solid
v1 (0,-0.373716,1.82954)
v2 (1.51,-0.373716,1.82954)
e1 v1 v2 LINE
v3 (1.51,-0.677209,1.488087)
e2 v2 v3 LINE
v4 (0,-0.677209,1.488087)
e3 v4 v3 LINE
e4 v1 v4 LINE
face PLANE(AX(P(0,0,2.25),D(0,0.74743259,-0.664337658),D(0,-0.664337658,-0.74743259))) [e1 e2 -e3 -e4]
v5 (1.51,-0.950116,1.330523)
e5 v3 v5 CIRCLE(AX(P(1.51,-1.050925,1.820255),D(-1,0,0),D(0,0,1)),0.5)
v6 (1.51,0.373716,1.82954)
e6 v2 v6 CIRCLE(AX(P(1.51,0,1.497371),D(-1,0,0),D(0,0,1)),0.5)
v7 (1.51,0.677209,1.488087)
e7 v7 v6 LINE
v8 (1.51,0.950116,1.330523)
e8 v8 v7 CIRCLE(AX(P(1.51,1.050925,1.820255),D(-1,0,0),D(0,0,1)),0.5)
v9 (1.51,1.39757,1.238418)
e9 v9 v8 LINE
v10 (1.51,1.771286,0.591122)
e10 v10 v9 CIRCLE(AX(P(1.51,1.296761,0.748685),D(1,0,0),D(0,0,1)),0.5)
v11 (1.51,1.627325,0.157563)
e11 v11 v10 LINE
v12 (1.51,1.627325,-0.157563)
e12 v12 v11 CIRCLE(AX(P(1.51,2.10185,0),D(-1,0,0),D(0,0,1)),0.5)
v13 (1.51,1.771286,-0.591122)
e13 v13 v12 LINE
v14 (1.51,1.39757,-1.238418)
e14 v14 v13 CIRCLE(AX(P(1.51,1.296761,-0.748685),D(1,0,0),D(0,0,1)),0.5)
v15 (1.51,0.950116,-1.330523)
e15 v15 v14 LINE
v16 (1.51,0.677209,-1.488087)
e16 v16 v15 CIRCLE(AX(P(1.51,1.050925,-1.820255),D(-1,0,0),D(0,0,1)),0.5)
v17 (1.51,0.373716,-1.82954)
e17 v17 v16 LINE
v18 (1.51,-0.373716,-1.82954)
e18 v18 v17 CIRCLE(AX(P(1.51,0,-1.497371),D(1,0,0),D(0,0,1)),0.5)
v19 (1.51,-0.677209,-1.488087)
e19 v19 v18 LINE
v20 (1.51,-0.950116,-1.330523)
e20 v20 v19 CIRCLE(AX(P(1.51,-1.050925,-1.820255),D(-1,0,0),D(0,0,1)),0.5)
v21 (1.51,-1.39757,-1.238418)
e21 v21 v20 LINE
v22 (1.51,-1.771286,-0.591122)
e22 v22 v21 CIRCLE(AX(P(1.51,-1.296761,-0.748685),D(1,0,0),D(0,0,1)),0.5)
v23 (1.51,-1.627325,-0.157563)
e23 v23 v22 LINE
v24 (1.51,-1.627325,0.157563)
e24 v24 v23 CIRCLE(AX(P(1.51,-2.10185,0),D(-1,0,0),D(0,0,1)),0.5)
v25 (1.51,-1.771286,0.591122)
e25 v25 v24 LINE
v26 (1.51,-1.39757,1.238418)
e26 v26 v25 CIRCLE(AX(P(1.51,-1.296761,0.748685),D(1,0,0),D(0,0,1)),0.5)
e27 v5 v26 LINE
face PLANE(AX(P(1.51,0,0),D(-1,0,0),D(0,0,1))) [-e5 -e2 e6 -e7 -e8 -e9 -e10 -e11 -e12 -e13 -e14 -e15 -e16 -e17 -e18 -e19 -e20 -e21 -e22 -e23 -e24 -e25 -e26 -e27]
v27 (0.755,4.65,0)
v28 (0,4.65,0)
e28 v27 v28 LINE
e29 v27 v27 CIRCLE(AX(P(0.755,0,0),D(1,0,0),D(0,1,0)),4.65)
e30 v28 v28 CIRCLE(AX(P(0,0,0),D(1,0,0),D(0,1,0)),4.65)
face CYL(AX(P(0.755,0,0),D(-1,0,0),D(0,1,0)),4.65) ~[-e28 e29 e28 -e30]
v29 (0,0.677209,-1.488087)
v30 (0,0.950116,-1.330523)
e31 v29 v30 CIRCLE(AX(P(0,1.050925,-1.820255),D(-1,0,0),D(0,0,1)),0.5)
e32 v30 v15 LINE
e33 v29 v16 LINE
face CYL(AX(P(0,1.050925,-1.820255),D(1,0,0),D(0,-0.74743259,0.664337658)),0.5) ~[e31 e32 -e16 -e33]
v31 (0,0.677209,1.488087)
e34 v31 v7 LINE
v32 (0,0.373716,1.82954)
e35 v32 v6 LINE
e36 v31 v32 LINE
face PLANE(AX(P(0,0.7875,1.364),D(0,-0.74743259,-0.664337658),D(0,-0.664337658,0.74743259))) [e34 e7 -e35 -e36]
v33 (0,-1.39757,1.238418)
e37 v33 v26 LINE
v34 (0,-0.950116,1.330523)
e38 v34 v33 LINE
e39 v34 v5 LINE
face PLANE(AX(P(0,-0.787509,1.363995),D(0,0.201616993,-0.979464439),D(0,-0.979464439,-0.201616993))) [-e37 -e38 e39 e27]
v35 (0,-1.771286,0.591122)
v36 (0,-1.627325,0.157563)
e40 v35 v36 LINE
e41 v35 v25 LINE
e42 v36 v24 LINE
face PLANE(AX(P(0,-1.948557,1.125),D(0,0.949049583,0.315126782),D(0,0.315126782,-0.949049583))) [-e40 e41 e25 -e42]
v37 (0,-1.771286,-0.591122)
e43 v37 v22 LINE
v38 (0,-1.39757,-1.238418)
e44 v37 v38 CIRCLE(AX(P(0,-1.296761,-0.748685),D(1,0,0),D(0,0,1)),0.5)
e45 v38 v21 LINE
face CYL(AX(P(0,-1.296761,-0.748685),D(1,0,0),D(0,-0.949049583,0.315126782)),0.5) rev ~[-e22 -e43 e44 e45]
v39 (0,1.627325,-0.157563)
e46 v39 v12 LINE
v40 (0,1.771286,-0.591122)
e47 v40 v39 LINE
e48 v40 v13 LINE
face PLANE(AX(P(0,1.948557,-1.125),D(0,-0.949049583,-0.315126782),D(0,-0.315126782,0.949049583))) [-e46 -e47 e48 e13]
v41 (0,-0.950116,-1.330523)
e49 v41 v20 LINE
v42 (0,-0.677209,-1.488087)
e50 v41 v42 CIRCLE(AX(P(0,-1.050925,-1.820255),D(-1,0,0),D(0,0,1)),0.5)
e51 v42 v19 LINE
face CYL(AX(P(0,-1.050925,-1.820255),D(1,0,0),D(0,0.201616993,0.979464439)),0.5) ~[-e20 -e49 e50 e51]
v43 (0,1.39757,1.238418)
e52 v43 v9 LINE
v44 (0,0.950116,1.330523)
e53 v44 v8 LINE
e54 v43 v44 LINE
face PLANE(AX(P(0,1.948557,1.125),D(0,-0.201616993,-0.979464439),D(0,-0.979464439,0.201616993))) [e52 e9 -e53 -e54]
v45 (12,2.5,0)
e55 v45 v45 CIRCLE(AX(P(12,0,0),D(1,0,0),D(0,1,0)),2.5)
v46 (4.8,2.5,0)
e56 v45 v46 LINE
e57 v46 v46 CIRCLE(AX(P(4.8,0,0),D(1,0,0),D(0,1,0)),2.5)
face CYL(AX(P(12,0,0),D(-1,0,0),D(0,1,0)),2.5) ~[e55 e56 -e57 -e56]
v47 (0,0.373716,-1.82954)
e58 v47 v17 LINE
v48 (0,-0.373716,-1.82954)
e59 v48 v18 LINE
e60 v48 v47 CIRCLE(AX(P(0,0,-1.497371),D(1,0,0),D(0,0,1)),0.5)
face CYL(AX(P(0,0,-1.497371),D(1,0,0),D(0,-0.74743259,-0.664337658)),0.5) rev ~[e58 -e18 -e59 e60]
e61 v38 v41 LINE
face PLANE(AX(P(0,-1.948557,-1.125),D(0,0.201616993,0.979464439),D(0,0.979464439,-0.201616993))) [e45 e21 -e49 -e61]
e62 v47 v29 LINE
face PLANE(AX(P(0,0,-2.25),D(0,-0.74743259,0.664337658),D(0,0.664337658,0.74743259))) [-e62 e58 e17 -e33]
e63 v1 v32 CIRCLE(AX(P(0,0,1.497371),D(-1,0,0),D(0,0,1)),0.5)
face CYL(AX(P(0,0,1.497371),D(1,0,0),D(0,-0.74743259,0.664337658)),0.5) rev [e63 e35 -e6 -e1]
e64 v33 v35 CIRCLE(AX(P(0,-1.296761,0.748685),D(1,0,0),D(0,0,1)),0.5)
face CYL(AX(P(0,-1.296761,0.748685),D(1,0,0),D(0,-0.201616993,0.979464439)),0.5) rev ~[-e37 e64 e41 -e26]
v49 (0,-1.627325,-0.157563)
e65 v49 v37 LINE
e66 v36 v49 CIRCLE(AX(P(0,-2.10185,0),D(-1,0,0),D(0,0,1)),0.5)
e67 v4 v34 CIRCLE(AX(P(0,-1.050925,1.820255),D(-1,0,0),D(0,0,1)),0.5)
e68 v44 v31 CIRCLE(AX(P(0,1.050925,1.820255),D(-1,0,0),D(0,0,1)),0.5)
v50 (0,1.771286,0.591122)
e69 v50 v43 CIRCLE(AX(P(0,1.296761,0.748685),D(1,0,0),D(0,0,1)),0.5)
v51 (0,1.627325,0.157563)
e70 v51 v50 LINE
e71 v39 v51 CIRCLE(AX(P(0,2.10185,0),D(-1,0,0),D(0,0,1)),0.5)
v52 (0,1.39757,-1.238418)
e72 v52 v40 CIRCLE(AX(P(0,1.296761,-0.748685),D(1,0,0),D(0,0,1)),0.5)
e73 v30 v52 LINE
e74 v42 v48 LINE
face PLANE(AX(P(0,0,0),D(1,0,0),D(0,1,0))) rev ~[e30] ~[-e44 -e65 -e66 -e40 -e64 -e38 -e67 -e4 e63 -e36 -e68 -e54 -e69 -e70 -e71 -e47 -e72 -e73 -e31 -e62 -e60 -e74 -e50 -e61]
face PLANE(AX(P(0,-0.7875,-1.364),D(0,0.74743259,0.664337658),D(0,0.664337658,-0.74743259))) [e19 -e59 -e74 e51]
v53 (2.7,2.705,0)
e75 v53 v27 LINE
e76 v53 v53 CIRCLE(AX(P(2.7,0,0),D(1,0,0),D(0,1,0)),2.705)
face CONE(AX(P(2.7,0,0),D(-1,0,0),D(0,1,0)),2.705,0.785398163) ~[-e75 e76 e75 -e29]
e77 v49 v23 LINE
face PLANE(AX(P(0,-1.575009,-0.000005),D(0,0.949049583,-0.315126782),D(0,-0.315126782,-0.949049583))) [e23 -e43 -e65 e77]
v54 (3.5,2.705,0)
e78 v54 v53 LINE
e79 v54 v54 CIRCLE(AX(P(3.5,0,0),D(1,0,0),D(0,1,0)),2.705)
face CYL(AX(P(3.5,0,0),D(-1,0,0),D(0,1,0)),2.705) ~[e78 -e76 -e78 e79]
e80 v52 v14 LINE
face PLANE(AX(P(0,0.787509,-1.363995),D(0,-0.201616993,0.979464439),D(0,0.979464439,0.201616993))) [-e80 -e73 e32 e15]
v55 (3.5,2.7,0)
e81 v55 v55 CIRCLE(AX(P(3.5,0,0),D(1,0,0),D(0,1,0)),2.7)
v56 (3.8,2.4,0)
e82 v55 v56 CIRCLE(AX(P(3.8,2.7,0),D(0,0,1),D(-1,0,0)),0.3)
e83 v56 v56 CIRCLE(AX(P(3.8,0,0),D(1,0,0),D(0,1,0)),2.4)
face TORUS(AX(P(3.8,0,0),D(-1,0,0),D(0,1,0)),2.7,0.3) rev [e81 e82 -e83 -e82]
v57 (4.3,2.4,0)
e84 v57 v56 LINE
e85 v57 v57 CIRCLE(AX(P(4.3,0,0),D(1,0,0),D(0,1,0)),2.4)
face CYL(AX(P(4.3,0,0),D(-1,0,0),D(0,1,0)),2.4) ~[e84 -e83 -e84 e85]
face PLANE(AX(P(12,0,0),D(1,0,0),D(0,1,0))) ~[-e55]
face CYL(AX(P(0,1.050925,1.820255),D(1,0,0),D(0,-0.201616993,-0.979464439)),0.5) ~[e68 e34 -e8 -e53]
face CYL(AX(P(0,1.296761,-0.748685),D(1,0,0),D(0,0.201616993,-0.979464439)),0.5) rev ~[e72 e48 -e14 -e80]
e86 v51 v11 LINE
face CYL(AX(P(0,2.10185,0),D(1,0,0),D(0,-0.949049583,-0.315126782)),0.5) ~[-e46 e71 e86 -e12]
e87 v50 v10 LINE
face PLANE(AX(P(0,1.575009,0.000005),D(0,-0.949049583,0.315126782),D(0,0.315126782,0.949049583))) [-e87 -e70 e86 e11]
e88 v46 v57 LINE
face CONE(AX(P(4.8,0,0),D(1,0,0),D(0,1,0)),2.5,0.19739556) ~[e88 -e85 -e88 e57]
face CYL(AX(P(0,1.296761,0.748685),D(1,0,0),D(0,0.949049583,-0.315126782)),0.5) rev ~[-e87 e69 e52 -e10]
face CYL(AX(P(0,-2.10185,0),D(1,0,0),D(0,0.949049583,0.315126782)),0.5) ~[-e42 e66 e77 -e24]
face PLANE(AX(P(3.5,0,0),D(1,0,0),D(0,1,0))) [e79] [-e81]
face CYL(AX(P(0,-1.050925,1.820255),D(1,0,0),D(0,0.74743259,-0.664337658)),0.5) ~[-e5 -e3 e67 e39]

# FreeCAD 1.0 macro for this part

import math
import FreeCAD as App
import Part
import Sketcher
Q = App.Units.Quantity


def edges_at(feature, points):
    """Names of the edges that pass closest to the given points."""
    edges = feature.Shape.Edges
    near = lambda p: min(range(len(edges)), key=lambda i: edges[i].distToShape(Part.Vertex(*p))[0])
    return sorted({f"Edge{near(p) + 1}" for p in points})


def add_polygon(sketch, points):
    """Adds a closed chain of lines whose ends are joined by coincident constraints."""
    first, n = sketch.GeometryCount, len(points)
    for a, b in zip(points, points[1:] + points[:1]):
        sketch.addGeometry(Part.LineSegment(App.Vector(*a, 0), App.Vector(*b, 0)), False)
    for i in range(n):
        sketch.addConstraint(Sketcher.Constraint("Coincident", first + i, 2, first + (i + 1) % n, 1))

doc = App.newDocument("Part")
params = doc.addObject("Spreadsheet::Sheet", "Params")
for row, (alias, value) in enumerate([
    ("sketch1_radius", "0.3 mm"),
    ("sketch1_width", "12 mm"),
    ("sketch1_width2", "7.2 mm"),
    ("sketch1_width3", "0.5 mm"),
    ("sketch1_width4", "0.8 mm"),
    ("revolution_angle", "360 deg"),
    ("pocket1_length", "1.51 mm"),
    ("fillet_radius", "0.5 mm"),
], start=1):
    params.set(f"A{row}", alias)
    params.set(f"B{row}", "=" + value)
    params.setAlias(f"B{row}", alias)

body = doc.addObject("PartDesign::Body", "Body")

# Sketch on XY plane
sketch1 = body.newObject("Sketcher::SketchObject", "Sketch")
sketch1.AttachmentSupport = (doc.getObject("XY_Plane"), [""])
sketch1.MapMode = "FlatFace"
sketch1.addGeometry([
    Part.LineSegment(App.Vector(0, 4.65, 0), App.Vector(0, 0, 0)),  # 0
    Part.LineSegment(App.Vector(0, 0, 0), App.Vector(12, 0, 0)),  # 1
    Part.LineSegment(App.Vector(12, 0, 0), App.Vector(12, 2.5, 0)),  # 2
    Part.LineSegment(App.Vector(12, 2.5, 0), App.Vector(4.8, 2.5, 0)),  # 3
    Part.LineSegment(App.Vector(4.8, 2.5, 0), App.Vector(4.3, 2.4, 0)),  # 4
    Part.LineSegment(App.Vector(4.3, 2.4, 0), App.Vector(3.8, 2.4, 0)),  # 5
    Part.ArcOfCircle(Part.Circle(App.Vector(3.8, 2.7, 0), App.Vector(0, 0, 1), 0.3), math.radians(180), math.radians(270)),  # 6
    Part.LineSegment(App.Vector(3.5, 2.7, 0), App.Vector(3.5, 2.705, 0)),  # 7
    Part.LineSegment(App.Vector(3.5, 2.705, 0), App.Vector(2.7, 2.705, 0)),  # 8
    Part.LineSegment(App.Vector(2.7, 2.705, 0), App.Vector(0.755, 4.65, 0)),  # 9
    Part.LineSegment(App.Vector(0.755, 4.65, 0), App.Vector(0, 4.65, 0)),  # 10
], False)
sketch1.addConstraint([
    Sketcher.Constraint("Coincident", 0, 2, 1, 1),
    Sketcher.Constraint("Coincident", 1, 2, 2, 1),
    Sketcher.Constraint("Coincident", 2, 2, 3, 1),
    Sketcher.Constraint("Coincident", 3, 2, 4, 1),
    Sketcher.Constraint("Coincident", 4, 2, 5, 1),
    Sketcher.Constraint("Tangent", 5, 2, 6, 2),
    Sketcher.Constraint("Tangent", 6, 1, 7, 1),
    Sketcher.Constraint("Coincident", 7, 2, 8, 1),
    Sketcher.Constraint("Coincident", 8, 2, 9, 1),
    Sketcher.Constraint("Coincident", 9, 2, 10, 1),
    Sketcher.Constraint("Coincident", 10, 2, 0, 1),
    Sketcher.Constraint("Vertical", 0),
    Sketcher.Constraint("Horizontal", 1),
    Sketcher.Constraint("Vertical", 2),
    Sketcher.Constraint("Horizontal", 3),
    Sketcher.Constraint("Horizontal", 5),
    Sketcher.Constraint("Vertical", 7),
    Sketcher.Constraint("Horizontal", 8),
    Sketcher.Constraint("Horizontal", 10),
    Sketcher.Constraint("Coincident", 0, 2, -1, 1),
    Sketcher.Constraint("Radius", 6, Q("0.3 mm")),
    Sketcher.Constraint("DistanceX", 1, 1, 1, 2, Q("12 mm")),
    Sketcher.Constraint("DistanceX", 3, 2, 3, 1, Q("7.2 mm")),
    Sketcher.Constraint("DistanceX", 5, 2, 5, 1, Q("0.5 mm")),
    Sketcher.Constraint("DistanceX", 8, 2, 8, 1, Q("0.8 mm")),
    Sketcher.Constraint("DistanceY", -1, 1, 6, 3, Q("2.7 mm")),
    Sketcher.Constraint("DistanceX", -1, 1, 8, 2, Q("2.7 mm")),
    Sketcher.Constraint("DistanceX", 10, 2, 10, 1, Q("0.755 mm")),
    Sketcher.Constraint("Angle", 9, Q("135 deg")),
    Sketcher.Constraint("DistanceY", 2, 1, 2, 2, Q("2.5 mm")),
    Sketcher.Constraint("DistanceY", 0, 2, 0, 1, Q("4.65 mm")),
])
sketch1.setExpression("Constraints[20]", "Params.sketch1_radius")
sketch1.setExpression("Constraints[21]", "Params.sketch1_width")
sketch1.setExpression("Constraints[22]", "Params.sketch1_width2")
sketch1.setExpression("Constraints[23]", "Params.sketch1_width3")
sketch1.setExpression("Constraints[24]", "Params.sketch1_width4")
revolution = body.newObject("PartDesign::Revolution", "Revolution")
revolution.Profile = sketch1
revolution.ReferenceAxis = (sketch1, ["H_Axis"])
revolution.setExpression("Angle", "Params.revolution_angle")

# Sketch on YZ plane
sketch2 = body.newObject("Sketcher::SketchObject", "Sketch001")
sketch2.AttachmentSupport = (doc.getObject("YZ_Plane"), [""])
sketch2.MapMode = "FlatFace"
add_polygon(sketch2, [(-0.8, 1.4), (0, 2.2), (0.8, 1.4), (0, 0)])  # lines 0-3
sketch2.addConstraint([
    Sketcher.Constraint("Coincident", 2, 2, -1, 1),
    Sketcher.Constraint("Symmetric", 1, 2, 3, 2, -2),
    Sketcher.Constraint("PointOnObject", 0, 2, -2),
    Sketcher.Constraint("Angle", 2, Q("-119.9998 deg")),
    Sketcher.Constraint("DistanceY", -1, 1, 0, 2, Q("2.25 mm")),
    Sketcher.Constraint("Distance", 2, Q("1.575 mm")),
])
pocket1 = body.newObject("PartDesign::Pocket", "Pocket")
pocket1.Profile = sketch2
pocket1.setExpression("Length", "Params.pocket1_length")
pocket1.Reversed = True
doc.recompute()

polarpattern = body.newObject("PartDesign::PolarPattern", "PolarPattern")
polarpattern.Originals = [pocket1]
polarpattern.Axis = (doc.getObject("X_Axis"), [""])
polarpattern.Angle = 360
polarpattern.Occurrences = 6
body.Tip = polarpattern
doc.recompute()

fillet = body.newObject("PartDesign::Fillet", "Fillet")
fillet.Base = (polarpattern, edges_at(polarpattern, [
    (0.755, 0.787, 1.364),
    (0.755, 0, 2.25),
    (0.755, -0.787, 1.364),
    (0.755, -1.575, 0),
    (0.755, -1.949, 1.125),
    (0.755, -1.949, -1.125),
    (0.755, -0.787, -1.364),
    (0.755, 0, -2.25),
    (0.755, 0.787, -1.364),
    (0.755, 1.949, -1.125),
    (0.755, 1.575, 0),
    (0.755, 1.949, 1.125),
]))
fillet.setExpression("Radius", "Params.fillet_radius")

doc.recompute()
